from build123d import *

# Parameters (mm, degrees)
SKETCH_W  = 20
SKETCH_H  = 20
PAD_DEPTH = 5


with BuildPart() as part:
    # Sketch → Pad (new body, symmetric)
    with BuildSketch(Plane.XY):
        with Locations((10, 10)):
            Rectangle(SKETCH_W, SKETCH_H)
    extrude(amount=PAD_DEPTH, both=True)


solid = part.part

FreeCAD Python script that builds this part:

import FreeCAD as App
import Part
import Sketcher
from FreeCAD import Vector

doc = App.newDocument("Part")
body = doc.addObject("PartDesign::Body", "Body")

sketch1 = body.newObject("Sketcher::SketchObject", "Sketch")
sketch1.AttachmentSupport = (doc.getObject("XY_Plane"), [""])
sketch1.MapMode = "FlatFace"
sketch1.addGeometry([
    Part.LineSegment(Vector(0, 20, 0), Vector(0, 0, 0)),
    Part.LineSegment(Vector(0, 0, 0), Vector(20, 0, 0)),
    Part.LineSegment(Vector(20, 0, 0), Vector(20, 20, 0)),
    Part.LineSegment(Vector(20, 20, 0), Vector(0, 20, 0)),
], False)
sketch1.addConstraint([
    Sketcher.Constraint("Coincident", 0, 2, 1, 1),
    Sketcher.Constraint("Coincident", 1, 2, 2, 1),
    Sketcher.Constraint("Coincident", 2, 2, 3, 1),
    Sketcher.Constraint("Coincident", 3, 2, 0, 1),
    Sketcher.Constraint("Vertical", 0),
    Sketcher.Constraint("Horizontal", 1),
    Sketcher.Constraint("Vertical", 2),
    Sketcher.Constraint("Horizontal", 3),
    Sketcher.Constraint("Coincident", 0, 2, -1, 1),
    Sketcher.Constraint("Equal", 3, 0),
    Sketcher.Constraint("DistanceX", 1, 1, 1, 2, 20.0),
])
pad1 = body.newObject("PartDesign::Pad", "Pad")
pad1.Profile = sketch1
pad1.Length = 10
pad1.Midplane = True

doc.recompute()
